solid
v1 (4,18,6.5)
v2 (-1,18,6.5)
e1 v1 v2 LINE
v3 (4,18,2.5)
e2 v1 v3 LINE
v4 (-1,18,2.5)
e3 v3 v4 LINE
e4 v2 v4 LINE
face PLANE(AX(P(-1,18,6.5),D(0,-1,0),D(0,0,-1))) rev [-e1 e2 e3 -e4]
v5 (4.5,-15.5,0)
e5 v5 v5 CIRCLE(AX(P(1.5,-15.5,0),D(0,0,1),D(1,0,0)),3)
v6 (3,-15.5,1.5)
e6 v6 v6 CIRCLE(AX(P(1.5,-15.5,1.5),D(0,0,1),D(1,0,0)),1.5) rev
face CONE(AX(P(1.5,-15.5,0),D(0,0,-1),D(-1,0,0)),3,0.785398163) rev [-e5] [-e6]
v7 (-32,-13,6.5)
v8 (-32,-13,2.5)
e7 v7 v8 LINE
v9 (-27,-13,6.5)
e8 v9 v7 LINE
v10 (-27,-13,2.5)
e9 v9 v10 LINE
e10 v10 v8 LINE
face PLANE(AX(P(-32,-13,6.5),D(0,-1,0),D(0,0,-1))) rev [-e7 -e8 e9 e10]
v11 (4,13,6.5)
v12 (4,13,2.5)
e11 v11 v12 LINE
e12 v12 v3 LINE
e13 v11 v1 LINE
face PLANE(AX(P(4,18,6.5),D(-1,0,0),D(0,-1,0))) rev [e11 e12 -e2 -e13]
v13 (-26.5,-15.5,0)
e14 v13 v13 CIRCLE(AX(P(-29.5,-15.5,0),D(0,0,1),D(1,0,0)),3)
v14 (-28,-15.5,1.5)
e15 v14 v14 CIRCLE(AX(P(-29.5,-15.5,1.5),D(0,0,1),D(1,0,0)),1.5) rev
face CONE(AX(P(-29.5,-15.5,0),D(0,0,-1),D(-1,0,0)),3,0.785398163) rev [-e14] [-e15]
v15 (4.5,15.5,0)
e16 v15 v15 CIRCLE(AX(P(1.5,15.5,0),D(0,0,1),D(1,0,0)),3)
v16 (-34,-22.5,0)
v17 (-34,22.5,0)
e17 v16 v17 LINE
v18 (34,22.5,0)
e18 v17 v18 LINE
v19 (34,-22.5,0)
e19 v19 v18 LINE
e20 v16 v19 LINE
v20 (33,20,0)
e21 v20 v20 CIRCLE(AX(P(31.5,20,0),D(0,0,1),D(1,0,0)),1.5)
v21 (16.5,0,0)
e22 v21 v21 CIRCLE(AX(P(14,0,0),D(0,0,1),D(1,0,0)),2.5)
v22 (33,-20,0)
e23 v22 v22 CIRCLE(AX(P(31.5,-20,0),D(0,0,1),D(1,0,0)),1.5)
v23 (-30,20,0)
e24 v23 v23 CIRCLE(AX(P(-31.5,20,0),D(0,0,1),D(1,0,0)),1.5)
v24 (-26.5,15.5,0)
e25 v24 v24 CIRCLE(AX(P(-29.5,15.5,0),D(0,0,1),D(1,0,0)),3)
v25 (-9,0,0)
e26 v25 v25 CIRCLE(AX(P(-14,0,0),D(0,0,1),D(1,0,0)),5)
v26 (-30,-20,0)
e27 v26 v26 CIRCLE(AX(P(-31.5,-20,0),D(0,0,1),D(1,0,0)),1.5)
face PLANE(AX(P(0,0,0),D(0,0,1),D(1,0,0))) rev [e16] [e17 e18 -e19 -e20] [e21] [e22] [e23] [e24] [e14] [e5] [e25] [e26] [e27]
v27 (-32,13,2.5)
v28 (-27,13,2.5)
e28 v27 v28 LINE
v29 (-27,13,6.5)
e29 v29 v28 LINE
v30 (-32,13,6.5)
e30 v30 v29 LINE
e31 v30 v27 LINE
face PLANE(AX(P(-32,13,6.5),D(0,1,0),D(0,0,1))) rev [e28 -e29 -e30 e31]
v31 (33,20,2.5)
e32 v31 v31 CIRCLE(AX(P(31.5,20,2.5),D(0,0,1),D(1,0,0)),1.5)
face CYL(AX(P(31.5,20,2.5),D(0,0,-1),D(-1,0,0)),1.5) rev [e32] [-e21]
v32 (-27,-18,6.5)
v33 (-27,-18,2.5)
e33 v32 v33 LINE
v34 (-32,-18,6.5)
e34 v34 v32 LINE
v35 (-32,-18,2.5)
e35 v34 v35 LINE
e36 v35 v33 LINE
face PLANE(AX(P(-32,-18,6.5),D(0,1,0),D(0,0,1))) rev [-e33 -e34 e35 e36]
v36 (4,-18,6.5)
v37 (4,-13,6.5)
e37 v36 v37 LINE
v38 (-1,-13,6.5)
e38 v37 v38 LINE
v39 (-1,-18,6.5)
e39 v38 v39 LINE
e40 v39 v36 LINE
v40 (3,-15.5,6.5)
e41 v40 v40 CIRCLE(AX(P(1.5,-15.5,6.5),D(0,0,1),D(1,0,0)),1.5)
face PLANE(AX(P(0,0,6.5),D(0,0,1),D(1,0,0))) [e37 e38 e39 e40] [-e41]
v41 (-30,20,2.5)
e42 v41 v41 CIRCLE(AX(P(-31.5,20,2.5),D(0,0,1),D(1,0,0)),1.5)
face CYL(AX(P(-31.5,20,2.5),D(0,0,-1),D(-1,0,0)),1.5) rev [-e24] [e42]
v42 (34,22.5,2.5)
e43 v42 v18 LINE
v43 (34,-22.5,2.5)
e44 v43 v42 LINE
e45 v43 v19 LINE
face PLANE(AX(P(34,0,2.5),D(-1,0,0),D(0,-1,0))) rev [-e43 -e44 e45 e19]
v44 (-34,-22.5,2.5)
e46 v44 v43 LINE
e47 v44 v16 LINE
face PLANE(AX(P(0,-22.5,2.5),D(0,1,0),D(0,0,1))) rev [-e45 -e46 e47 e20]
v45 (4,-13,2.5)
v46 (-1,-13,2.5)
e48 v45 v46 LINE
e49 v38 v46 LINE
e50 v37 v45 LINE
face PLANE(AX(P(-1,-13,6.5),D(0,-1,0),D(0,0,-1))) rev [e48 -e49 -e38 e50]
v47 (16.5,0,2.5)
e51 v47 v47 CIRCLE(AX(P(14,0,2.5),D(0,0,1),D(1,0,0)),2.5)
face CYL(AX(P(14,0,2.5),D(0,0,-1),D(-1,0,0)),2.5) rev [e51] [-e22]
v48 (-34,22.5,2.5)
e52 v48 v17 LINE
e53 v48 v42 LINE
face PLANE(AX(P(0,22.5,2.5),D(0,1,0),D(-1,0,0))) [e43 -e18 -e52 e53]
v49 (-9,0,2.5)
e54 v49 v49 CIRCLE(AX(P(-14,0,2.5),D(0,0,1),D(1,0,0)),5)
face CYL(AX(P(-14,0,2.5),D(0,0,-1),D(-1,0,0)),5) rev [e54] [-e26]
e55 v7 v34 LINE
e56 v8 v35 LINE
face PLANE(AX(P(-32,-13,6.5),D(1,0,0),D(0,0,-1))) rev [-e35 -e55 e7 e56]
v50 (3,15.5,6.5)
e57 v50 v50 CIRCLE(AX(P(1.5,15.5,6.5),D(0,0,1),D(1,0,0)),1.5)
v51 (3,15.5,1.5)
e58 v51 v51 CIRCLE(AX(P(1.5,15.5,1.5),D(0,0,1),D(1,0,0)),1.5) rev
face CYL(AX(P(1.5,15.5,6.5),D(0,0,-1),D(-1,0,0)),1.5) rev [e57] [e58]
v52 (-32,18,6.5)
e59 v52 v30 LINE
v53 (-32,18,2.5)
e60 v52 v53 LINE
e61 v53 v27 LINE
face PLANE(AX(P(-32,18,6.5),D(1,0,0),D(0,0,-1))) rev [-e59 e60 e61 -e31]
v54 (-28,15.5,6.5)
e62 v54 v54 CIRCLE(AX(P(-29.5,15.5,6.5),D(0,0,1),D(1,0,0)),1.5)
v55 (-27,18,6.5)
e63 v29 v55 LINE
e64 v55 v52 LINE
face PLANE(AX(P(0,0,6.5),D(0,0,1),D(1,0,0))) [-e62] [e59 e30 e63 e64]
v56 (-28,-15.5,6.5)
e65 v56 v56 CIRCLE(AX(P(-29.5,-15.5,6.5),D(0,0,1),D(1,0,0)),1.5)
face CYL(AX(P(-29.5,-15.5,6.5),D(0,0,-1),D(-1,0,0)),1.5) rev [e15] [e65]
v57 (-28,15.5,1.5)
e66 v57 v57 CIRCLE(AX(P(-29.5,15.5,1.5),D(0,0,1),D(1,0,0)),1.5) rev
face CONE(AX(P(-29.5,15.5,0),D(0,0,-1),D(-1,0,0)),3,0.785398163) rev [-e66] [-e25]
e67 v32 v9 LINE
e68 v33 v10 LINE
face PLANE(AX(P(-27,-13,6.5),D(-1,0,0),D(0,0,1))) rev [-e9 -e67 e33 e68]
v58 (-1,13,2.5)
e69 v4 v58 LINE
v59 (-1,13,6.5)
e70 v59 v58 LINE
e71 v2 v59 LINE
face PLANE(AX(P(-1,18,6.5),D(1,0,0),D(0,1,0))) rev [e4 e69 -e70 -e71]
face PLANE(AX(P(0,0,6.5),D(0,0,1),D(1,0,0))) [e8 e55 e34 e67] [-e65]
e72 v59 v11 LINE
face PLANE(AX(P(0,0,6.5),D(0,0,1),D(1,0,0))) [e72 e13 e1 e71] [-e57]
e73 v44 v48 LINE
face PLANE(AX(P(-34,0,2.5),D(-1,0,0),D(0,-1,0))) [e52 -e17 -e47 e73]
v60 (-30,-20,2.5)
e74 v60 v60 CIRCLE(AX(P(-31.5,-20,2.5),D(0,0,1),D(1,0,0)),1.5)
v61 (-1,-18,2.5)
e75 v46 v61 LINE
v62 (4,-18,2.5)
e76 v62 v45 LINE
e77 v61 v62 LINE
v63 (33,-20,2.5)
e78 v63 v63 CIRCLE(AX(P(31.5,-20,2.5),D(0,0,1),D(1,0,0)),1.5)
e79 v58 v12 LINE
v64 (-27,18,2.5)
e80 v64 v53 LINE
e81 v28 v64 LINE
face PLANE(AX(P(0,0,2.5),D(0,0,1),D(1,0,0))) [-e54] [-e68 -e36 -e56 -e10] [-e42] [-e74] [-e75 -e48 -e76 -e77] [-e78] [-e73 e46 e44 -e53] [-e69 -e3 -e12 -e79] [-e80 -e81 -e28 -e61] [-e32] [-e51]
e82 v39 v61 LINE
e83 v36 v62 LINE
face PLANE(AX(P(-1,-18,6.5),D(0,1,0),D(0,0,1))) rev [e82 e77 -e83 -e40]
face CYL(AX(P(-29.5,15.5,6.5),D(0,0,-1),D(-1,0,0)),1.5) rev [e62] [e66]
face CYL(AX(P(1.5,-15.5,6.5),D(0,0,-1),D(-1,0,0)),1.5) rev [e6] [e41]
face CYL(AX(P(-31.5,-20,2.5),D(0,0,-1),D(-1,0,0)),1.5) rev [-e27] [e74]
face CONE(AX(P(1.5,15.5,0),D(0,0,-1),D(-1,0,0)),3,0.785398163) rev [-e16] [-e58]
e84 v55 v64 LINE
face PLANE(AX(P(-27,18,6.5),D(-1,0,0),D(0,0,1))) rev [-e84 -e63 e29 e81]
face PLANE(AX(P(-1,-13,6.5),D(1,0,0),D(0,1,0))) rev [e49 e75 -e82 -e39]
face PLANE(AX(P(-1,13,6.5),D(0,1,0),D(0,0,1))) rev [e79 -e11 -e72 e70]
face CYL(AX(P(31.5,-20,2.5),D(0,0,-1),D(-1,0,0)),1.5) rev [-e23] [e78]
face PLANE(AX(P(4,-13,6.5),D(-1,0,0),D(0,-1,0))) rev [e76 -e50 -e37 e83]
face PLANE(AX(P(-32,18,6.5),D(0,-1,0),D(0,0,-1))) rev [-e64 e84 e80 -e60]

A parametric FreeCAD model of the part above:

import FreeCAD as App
import Part
import Sketcher


def edges_at(feature, points):
    """Names of the edges that pass closest to the given points."""
    edges = feature.Shape.Edges
    near = lambda p: min(range(len(edges)), key=lambda i: edges[i].distToShape(Part.Vertex(*p))[0])
    return sorted({f"Edge{near(p) + 1}" for p in points})


def add_polygon(sketch, points):
    """Adds a closed chain of lines whose ends are joined by coincident constraints."""
    first, n = sketch.GeometryCount, len(points)
    for a, b in zip(points, points[1:] + points[:1]):
        sketch.addGeometry(Part.LineSegment(App.Vector(*a, 0), App.Vector(*b, 0)), False)
    for i in range(n):
        sketch.addConstraint(Sketcher.Constraint("Coincident", first + i, 2, first + (i + 1) % n, 1))

doc = App.newDocument("Part")
params = doc.addObject("Spreadsheet::Sheet", "Params")
for row, (alias, value) in enumerate([
    ("sketch1_diameter", "3 mm"),
    ("sketch1_diameter2", "10 mm"),
    ("sketch1_diameter3", "5 mm"),
    ("sketch1_width", "68 mm"),
    ("sketch1_height", "45 mm"),
    ("pad1_length", "2.5 mm"),
    ("sketch2_diameter", "3 mm"),
    ("sketch2_width", "5 mm"),
    ("pad2_length", "4 mm"),
    ("sketch3_diameter", "3 mm"),
    ("pocket1_length", "2.5 mm"),
    ("chamfer_size", "1.5 mm"),
], start=1):
    params.set(f"A{row}", alias)
    params.set(f"B{row}", "=" + value)
    params.setAlias(f"B{row}", alias)

body = doc.addObject("PartDesign::Body", "Body")

sketch1 = body.newObject("Sketcher::SketchObject", "Sketch")
sketch1.AttachmentSupport = (doc.getObject("XY_Plane"), [""])
sketch1.MapMode = "FlatFace"
add_polygon(sketch1, [(-34, 22.5), (-34, -22.5), (34, -22.5), (34, 22.5)])
sketch1.addGeometry(Part.Circle(App.Vector(-31.5, -20, 0), App.Vector(0, 0, 1), 1.5), False)
sketch1.addGeometry(Part.Circle(App.Vector(31.5, -20, 0), App.Vector(0, 0, 1), 1.5), False)
sketch1.addGeometry(Part.Circle(App.Vector(-14, 0, 0), App.Vector(0, 0, 1), 5), False)
sketch1.addGeometry(Part.Circle(App.Vector(-31.5, 20, 0), App.Vector(0, 0, 1), 1.5), False)
sketch1.addGeometry(Part.Circle(App.Vector(14, 0, 0), App.Vector(0, 0, 1), 2.5), False)
sketch1.addGeometry(Part.Circle(App.Vector(31.5, 20, 0), App.Vector(0, 0, 1), 1.5), False)
sketch1.addConstraint([
    Sketcher.Constraint("Vertical", 0),
    Sketcher.Constraint("Horizontal", 1),
    Sketcher.Constraint("Vertical", 2),
    Sketcher.Constraint("Horizontal", 3),
    Sketcher.Constraint("Equal", 4, 5),
    Sketcher.Constraint("Equal", 5, 7),
    Sketcher.Constraint("Equal", 7, 9),
    Sketcher.Constraint("Symmetric", 5, 3, 7, 3, -1, 1),
    Sketcher.Constraint("Symmetric", 6, 3, 8, 3, -1, 1),
    Sketcher.Constraint("Symmetric", 4, 3, 9, 3, -1, 1),
    Sketcher.Constraint("Symmetric", 0, 2, 2, 2, -1, 1),
    Sketcher.Constraint("Symmetric", 4, 3, 5, 3, -2),
    Sketcher.Constraint("PointOnObject", 6, 3, -1),
    Sketcher.Constraint("Diameter", 4, 3.0),
    Sketcher.Constraint("Diameter", 6, 10.0),
    Sketcher.Constraint("Diameter", 8, 5.0),
    Sketcher.Constraint("DistanceX", 1, 1, 1, 2, 68.0),
    Sketcher.Constraint("DistanceY", 0, 2, 0, 1, 45.0),
    Sketcher.Constraint("DistanceY", 4, 3, -1, 1, 20.0),
    Sketcher.Constraint("DistanceX", 6, 3, -1, 1, 14.0),
    Sketcher.Constraint("DistanceX", 4, 3, 5, 3, 63.0),
])
sketch1.setExpression("Constraints[17]", "Params.sketch1_diameter")
sketch1.setExpression("Constraints[18]", "Params.sketch1_diameter2")
sketch1.setExpression("Constraints[19]", "Params.sketch1_diameter3")
sketch1.setExpression("Constraints[20]", "Params.sketch1_width")
sketch1.setExpression("Constraints[21]", "Params.sketch1_height")
pad1 = body.newObject("PartDesign::Pad", "Pad")
pad1.Profile = sketch1
pad1.setExpression("Length", "Params.pad1_length")

sketch2 = body.newObject("Sketcher::SketchObject", "Sketch001")
sketch2.AttachmentSupport = (doc.getObject("XY_Plane"), [""])
sketch2.MapMode = "FlatFace"
sketch2.AttachmentOffset = App.Placement(App.Vector(0, 0, 2.5), App.Rotation())
add_polygon(sketch2, [(-32, 18), (-32, 13), (-27, 13), (-27, 18)])
sketch2.addGeometry(Part.Circle(App.Vector(-29.5, 15.5, 0), App.Vector(0, 0, 1), 1.5), False)
add_polygon(sketch2, [(-1, 18), (-1, 13), (4, 13), (4, 18)])
sketch2.addGeometry(Part.Circle(App.Vector(1.5, 15.5, 0), App.Vector(0, 0, 1), 1.5), False)
add_polygon(sketch2, [(-1, -13), (-1, -18), (4, -18), (4, -13)])
sketch2.addGeometry(Part.Circle(App.Vector(1.5, -15.5, 0), App.Vector(0, 0, 1), 1.5), False)
add_polygon(sketch2, [(-32, -13), (-32, -18), (-27, -18), (-27, -13)])
sketch2.addGeometry(Part.Circle(App.Vector(-29.5, -15.5, 0), App.Vector(0, 0, 1), 1.5), False)
sketch2.addConstraint([
    Sketcher.Constraint("Vertical", 0),
    Sketcher.Constraint("Horizontal", 1),
    Sketcher.Constraint("Vertical", 2),
    Sketcher.Constraint("Horizontal", 3),
    Sketcher.Constraint("Vertical", 5),
    Sketcher.Constraint("Horizontal", 6),
    Sketcher.Constraint("Vertical", 7),
    Sketcher.Constraint("Horizontal", 8),
    Sketcher.Constraint("Vertical", 10),
    Sketcher.Constraint("Horizontal", 11),
    Sketcher.Constraint("Vertical", 12),
    Sketcher.Constraint("Horizontal", 13),
    Sketcher.Constraint("Vertical", 15),
    Sketcher.Constraint("Horizontal", 16),
    Sketcher.Constraint("Vertical", 17),
    Sketcher.Constraint("Horizontal", 18),
    Sketcher.Constraint("Equal", 4, 9),
    Sketcher.Constraint("Equal", 9, 14),
    Sketcher.Constraint("Equal", 14, 19),
    Sketcher.Constraint("Symmetric", 9, 3, 14, 3, -1),
    Sketcher.Constraint("Symmetric", 4, 3, 19, 3, -1),
    Sketcher.Constraint("Symmetric", 8, 2, 10, 2, -1),
    Sketcher.Constraint("Symmetric", 6, 2, 12, 2, -1),
    Sketcher.Constraint("Symmetric", 3, 2, 15, 2, -1),
    Sketcher.Constraint("Symmetric", 1, 2, 17, 2, -1),
    Sketcher.Constraint("Horizontal", 4, 3, 9, 3),
    Sketcher.Constraint("Horizontal", 1, 2, 5, 2),
    Sketcher.Constraint("Horizontal", 3, 2, 7, 2),
    Sketcher.Constraint("Equal", 3, 6),
    Sketcher.Constraint("Equal", 18, 0),
    Sketcher.Constraint("Diameter", 4, 3.0),
    Sketcher.Constraint("DistanceX", 1, 1, 1, 2, 5.0),
    Sketcher.Constraint("DistanceX", 0, 2, -1, 1, 32.0),
    Sketcher.Constraint("DistanceY", -1, 1, 0, 2, 13.0),
    Sketcher.Constraint("DistanceX", 5, 2, -1, 1, 1.0),
    Sketcher.Constraint("DistanceX", 4, 3, 9, 3, 31.0),
    Sketcher.Constraint("DistanceY", 14, 3, 9, 3, 31.0),
    Sketcher.Constraint("DistanceX", 4, 3, -1, 1, 29.5),
])
sketch2.setExpression("Constraints[46]", "Params.sketch2_diameter")
sketch2.setExpression("Constraints[47]", "Params.sketch2_width")
pad2 = body.newObject("PartDesign::Pad", "Pad001")
pad2.Profile = sketch2
pad2.setExpression("Length", "Params.pad2_length")

sketch3 = body.newObject("Sketcher::SketchObject", "Sketch002")
sketch3.AttachmentSupport = (doc.getObject("XY_Plane"), [""])
sketch3.MapMode = "FlatFace"
sketch3.addGeometry([
    Part.Circle(App.Vector(-29.5, 15.5, 0), App.Vector(0, 0, 1), 1.5),
    Part.Circle(App.Vector(1.5, 15.5, 0), App.Vector(0, 0, 1), 1.5),
    Part.Circle(App.Vector(1.5, -15.5, 0), App.Vector(0, 0, 1), 1.5),
    Part.Circle(App.Vector(-29.5, -15.5, 0), App.Vector(0, 0, 1), 1.5),
], False)
sketch3.addConstraint([
    Sketcher.Constraint("Equal", 0, 1),
    Sketcher.Constraint("Equal", 1, 2),
    Sketcher.Constraint("Equal", 2, 3),
    Sketcher.Constraint("Symmetric", 1, 3, 2, 3, -1),
    Sketcher.Constraint("Symmetric", 0, 3, 3, 3, -1),
    Sketcher.Constraint("Horizontal", 0, 3, 1, 3),
    Sketcher.Constraint("Diameter", 0, 3.0),
    Sketcher.Constraint("DistanceX", 0, 3, 1, 3, 31.0),
    Sketcher.Constraint("DistanceY", 2, 3, 1, 3, 31.0),
    Sketcher.Constraint("DistanceX", 0, 3, -1, 1, 29.5),
])
sketch3.setExpression("Constraints[6]", "Params.sketch3_diameter")
pocket1 = body.newObject("PartDesign::Pocket", "Pocket")
pocket1.Profile = sketch3
pocket1.setExpression("Length", "Params.pocket1_length")
pocket1.Reversed = True
doc.recompute()

chamfer = body.newObject("PartDesign::Chamfer", "Chamfer")
chamfer.Base = (pocket1, edges_at(pocket1, [
    (0, -15.5, 0),
    (0, 15.5, 0),
    (-31, 15.5, 0),
    (-31, -15.5, 0),
]))
chamfer.setExpression("Size", "Params.chamfer_size")

doc.recompute()
